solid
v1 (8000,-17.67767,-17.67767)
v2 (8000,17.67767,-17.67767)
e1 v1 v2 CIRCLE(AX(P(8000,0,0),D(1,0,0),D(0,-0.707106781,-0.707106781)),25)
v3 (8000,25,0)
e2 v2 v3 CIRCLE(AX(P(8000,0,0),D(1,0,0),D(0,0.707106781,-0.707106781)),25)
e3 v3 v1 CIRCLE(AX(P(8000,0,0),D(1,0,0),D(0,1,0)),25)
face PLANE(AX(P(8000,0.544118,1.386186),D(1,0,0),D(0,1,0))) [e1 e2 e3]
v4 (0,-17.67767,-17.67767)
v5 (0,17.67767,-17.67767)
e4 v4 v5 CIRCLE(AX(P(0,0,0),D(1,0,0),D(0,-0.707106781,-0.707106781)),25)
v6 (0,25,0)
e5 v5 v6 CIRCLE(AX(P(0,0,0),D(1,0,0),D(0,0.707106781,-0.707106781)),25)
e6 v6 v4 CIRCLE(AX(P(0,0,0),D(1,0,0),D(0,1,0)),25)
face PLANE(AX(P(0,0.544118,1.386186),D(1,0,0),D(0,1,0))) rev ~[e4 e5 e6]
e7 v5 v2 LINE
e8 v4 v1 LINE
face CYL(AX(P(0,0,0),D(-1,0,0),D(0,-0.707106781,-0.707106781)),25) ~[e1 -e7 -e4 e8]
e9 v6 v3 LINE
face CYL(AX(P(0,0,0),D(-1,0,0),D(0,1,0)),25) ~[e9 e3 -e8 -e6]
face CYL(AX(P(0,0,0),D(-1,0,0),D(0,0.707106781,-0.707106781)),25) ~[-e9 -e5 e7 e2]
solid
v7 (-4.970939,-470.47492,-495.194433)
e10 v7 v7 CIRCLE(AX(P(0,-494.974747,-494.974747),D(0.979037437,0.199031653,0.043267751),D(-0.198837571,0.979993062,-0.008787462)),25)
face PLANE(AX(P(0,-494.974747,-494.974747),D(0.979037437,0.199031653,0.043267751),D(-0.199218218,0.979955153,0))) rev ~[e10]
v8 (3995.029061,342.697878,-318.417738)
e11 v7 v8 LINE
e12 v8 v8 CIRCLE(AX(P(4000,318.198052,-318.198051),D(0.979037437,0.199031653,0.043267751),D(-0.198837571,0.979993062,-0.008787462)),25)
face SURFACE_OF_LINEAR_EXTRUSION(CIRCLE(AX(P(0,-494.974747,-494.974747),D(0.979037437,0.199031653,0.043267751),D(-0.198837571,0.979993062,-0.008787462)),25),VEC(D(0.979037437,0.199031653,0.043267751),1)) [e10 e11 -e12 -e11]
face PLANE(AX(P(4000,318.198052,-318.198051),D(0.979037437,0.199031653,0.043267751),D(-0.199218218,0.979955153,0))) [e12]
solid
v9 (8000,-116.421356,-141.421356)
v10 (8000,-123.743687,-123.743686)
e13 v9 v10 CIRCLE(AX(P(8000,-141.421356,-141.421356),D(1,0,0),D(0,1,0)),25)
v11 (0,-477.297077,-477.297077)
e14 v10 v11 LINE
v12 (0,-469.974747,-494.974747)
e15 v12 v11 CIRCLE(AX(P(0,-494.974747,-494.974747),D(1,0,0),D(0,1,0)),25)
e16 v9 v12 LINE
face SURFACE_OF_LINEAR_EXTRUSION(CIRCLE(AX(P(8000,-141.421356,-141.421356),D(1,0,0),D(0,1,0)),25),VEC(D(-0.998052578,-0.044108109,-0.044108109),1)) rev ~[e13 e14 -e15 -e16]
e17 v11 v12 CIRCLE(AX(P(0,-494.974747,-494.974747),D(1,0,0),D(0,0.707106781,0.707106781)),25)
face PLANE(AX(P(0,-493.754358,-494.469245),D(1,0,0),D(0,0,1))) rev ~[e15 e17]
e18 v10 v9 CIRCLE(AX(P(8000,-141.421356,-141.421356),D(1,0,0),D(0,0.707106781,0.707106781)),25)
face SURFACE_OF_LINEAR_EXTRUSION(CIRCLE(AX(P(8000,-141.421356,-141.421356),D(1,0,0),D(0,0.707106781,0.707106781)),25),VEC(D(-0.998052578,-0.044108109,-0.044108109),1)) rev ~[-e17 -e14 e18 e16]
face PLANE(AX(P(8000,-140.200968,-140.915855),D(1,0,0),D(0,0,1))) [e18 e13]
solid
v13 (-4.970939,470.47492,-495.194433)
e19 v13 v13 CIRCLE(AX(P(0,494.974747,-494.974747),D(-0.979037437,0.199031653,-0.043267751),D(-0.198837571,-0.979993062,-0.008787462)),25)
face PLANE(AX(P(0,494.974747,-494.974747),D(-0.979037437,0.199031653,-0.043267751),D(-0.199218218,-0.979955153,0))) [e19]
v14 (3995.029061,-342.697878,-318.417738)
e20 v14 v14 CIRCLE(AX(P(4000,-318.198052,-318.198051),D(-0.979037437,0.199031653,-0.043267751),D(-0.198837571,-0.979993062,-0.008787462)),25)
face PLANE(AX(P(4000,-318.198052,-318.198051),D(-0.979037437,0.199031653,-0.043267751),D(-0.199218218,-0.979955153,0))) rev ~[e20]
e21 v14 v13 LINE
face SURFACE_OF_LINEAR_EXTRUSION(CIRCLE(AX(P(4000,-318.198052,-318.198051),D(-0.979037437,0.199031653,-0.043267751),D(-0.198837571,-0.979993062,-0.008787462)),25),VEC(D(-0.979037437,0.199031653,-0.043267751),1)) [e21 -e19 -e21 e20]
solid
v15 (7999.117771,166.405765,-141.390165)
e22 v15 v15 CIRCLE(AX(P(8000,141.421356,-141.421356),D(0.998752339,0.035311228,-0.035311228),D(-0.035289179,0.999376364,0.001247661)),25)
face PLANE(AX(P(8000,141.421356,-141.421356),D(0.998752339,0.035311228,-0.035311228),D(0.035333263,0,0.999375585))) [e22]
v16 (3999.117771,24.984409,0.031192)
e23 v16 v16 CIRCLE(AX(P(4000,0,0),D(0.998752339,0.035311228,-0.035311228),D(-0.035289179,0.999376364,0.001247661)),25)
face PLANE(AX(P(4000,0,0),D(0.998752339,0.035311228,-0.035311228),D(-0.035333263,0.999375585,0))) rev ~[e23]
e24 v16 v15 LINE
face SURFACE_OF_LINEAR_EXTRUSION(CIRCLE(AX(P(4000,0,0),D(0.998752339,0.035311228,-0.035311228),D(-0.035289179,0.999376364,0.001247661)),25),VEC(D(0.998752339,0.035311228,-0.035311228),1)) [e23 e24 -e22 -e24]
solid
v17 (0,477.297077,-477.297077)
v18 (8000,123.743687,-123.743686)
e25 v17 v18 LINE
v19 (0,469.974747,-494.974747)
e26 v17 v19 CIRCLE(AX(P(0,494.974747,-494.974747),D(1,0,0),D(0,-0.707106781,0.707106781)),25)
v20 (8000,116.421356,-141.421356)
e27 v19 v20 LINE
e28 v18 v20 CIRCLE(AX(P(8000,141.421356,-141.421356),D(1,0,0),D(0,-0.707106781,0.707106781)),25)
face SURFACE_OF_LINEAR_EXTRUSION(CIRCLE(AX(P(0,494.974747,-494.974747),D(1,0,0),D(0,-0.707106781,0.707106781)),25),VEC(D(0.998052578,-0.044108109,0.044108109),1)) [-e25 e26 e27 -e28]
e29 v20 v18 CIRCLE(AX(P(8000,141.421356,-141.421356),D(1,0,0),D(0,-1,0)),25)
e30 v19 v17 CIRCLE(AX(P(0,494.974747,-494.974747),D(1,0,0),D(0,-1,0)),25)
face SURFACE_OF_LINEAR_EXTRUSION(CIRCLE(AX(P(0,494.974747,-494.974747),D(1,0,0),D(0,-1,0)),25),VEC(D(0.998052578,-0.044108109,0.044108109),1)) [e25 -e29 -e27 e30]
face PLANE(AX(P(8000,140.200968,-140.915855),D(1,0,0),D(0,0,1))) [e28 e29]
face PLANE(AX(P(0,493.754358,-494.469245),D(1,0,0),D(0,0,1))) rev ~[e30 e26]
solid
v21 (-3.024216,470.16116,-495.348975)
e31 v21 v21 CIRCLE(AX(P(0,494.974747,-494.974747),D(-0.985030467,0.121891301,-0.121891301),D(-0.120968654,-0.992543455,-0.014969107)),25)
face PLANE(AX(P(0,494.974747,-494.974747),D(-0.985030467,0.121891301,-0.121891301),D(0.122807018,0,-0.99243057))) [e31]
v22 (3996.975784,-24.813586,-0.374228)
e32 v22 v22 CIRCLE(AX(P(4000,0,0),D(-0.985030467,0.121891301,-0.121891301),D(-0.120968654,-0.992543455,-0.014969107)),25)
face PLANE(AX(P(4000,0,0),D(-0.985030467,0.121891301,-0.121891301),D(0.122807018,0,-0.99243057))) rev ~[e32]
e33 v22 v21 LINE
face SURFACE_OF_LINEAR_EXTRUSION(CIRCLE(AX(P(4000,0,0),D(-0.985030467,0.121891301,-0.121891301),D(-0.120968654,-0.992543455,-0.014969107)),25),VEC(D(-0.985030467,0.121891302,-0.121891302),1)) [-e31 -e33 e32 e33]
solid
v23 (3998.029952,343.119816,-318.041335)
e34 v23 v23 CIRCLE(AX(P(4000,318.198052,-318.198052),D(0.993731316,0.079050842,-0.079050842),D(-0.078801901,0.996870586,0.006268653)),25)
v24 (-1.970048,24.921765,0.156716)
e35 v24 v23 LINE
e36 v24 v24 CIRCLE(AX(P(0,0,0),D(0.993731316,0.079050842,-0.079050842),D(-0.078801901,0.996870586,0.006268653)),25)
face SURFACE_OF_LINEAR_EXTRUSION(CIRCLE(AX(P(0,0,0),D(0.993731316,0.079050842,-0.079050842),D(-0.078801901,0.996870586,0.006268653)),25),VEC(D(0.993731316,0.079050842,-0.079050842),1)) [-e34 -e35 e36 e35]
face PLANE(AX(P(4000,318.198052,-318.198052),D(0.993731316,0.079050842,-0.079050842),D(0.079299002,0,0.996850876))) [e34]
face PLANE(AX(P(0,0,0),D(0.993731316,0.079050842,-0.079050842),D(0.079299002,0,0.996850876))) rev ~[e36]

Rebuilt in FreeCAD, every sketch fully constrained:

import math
import FreeCAD as App
import Part
import Sketcher

V = App.Vector

doc = App.newDocument("Part")
body = doc.addObject("PartDesign::Body", "Body")

# Sketch on YZ plane
sketch1 = body.newObject("Sketcher::SketchObject", "Sketch")
sketch1.AttachmentSupport = (doc.getObject("YZ_Plane"), [""])
sketch1.MapMode = "FlatFace"
sketch1.addGeometry([
    Part.ArcOfCircle(Part.Circle(V(0, 0, 0), V(0, 0, 1), 25), math.radians(-45), math.radians(0)),
    Part.ArcOfCircle(Part.Circle(V(0, 0, 0), V(0, 0, 1), 25), math.radians(0), math.radians(225)),
    Part.ArcOfCircle(Part.Circle(V(0, 0, 0), V(0, 0, 1), 25), math.radians(-135), math.radians(-45)),
], False)
sketch1.addConstraint([
    Sketcher.Constraint("Tangent", 0, 2, 1, 1),
    Sketcher.Constraint("Tangent", 1, 2, 2, 1),
    Sketcher.Constraint("Tangent", 2, 2, 0, 1),
    Sketcher.Constraint("Coincident", 0, 3, -1, 1),
    Sketcher.Constraint("PointOnObject", 0, 2, -1),
    Sketcher.Constraint("Horizontal", 1, 2, 2, 2),
    Sketcher.Constraint("Radius", 0, 25.0),
    Sketcher.Constraint("DistanceX", 1, 2, -1, 1, 17.67767),
])
pad1 = body.newObject("PartDesign::Pad", "Pad")
pad1.Profile = sketch1
pad1.Length = 8000
body2 = doc.addObject("PartDesign::Body", "Body001")

# Sketch on YZ plane
sketch2 = body2.newObject("Sketcher::SketchObject", "Sketch001")
sketch2.AttachmentSupport = (doc.getObject("YZ_Plane001"), [""])
sketch2.MapMode = "FlatFace"
sketch2.addGeometry([
    Part.ArcOfCircle(Part.Circle(V(495, -495, 0), V(0, 0, 1), 25), math.radians(180), math.radians(495)),
    Part.ArcOfCircle(Part.Circle(V(495, -495, 0), V(0, 0, 1), 25), math.radians(135), math.radians(180)),
], False)
sketch2.addConstraint([
    Sketcher.Constraint("Tangent", 0, 1, 1, 2),
    Sketcher.Constraint("Coincident", 1, 1, 0, 2),
    Sketcher.Constraint("Horizontal", 1, 3, 0, 1),
    Sketcher.Constraint("Radius", 0, 25.0),
    Sketcher.Constraint("DistanceX", 0, 1, 1, 1, 7.32233),
    Sketcher.Constraint("DistanceX", -1, 1, 0, 3, 494.974747),
    Sketcher.Constraint("DistanceY", 0, 3, -1, 1, 494.974747),
])

# Sketch on an angled plane
sketch3 = body2.newObject("Sketcher::SketchObject", "Sketch002")
sketch3.Placement = App.Placement(V(21.832359, 0, -494.009884), App.Rotation(V(0.999024866, 0, 0.044151079), V(0, 1.000000001, 0), V(-0.044151079, 0, 0.999024866), "ZXY"))
sketch3.addGeometry(Part.LineSegment(V(-22, 495, 0), V(7986, 141, 0)), False)
sketch3.addConstraint([
    Sketcher.Constraint("DistanceX", 0, 1, -1, 1, 21.853669),
    Sketcher.Constraint("DistanceY", 0, 2, 0, 1, 353.553391),
    Sketcher.Constraint("Distance", 0, 8015.609776),
    Sketcher.Constraint("DistanceY", -1, 1, 0, 1, 494.974747),
])
doc.recompute()

additivepipe = body2.newObject("PartDesign::AdditivePipe", "AdditivePipe")
additivepipe.Profile = sketch2
additivepipe.Spine = (sketch3, ["Edge1"])
body3 = doc.addObject("PartDesign::Body", "Body002")

# Sketch on YZ plane
sketch4 = body3.newObject("Sketcher::SketchObject", "Sketch003")
sketch4.AttachmentSupport = (doc.getObject("YZ_Plane002"), [""])
sketch4.MapMode = "FlatFace"
sketch4.addGeometry([
    Part.ArcOfCircle(Part.Circle(V(-495, -495, 0), V(0, 0, 1), 25), math.radians(45), math.radians(360)),
    Part.ArcOfCircle(Part.Circle(V(-495, -495, 0), V(0, 0, 1), 25), math.radians(0), math.radians(45)),
], False)
sketch4.addConstraint([
    Sketcher.Constraint("Tangent", 0, 1, 1, 2),
    Sketcher.Constraint("Coincident", 1, 1, 0, 2),
    Sketcher.Constraint("Horizontal", 0, 3, 1, 1),
    Sketcher.Constraint("Radius", 0, 25.0),
    Sketcher.Constraint("DistanceX", 0, 3, 0, 1, 17.67767),
    Sketcher.Constraint("DistanceX", 0, 3, -1, 1, 494.974747),
    Sketcher.Constraint("DistanceY", 0, 3, -1, 1, 494.974747),
])

# Sketch on an angled plane
sketch5 = body3.newObject("Sketcher::SketchObject", "Sketch004")
sketch5.Placement = App.Placement(V(21.832359, 0, -494.009884), App.Rotation(V(-0.999024866, 0, -0.044151079), V(0, 1.000000001, 0), V(0.044151079, 0, -0.999024866), "ZXY"))
sketch5.addGeometry(Part.LineSegment(V(-7986, -141, 0), V(22, -495, 0)), False)
sketch5.addConstraint([
    Sketcher.Constraint("DistanceX", -1, 1, 0, 2, 21.853669),
    Sketcher.Constraint("DistanceY", 0, 2, 0, 1, 353.553391),
    Sketcher.Constraint("Distance", 0, 8015.609776),
    Sketcher.Constraint("DistanceY", 0, 1, -1, 1, 141.421356),
])
doc.recompute()

additivepipe2 = body3.newObject("PartDesign::AdditivePipe", "AdditivePipe001")
additivepipe2.Profile = sketch4
additivepipe2.Spine = (sketch5, ["Edge1"])
body4 = doc.addObject("PartDesign::Body", "Body003")

# Sketch on an angled plane
sketch6 = body4.newObject("Sketcher::SketchObject", "Sketch005")
sketch6.Placement = App.Placement(V(-117.418002, 23.870281, -5.189192), App.Rotation(V(-0.19883757, -0.979993062, -0.008787462), V(-0.044151079, 0, 0.999024866), V(-0.979037437, 0.199031653, -0.043267751), "ZXY"))
sketch6.addGeometry(Part.Circle(V(-481, -494, 0), V(0, 0, 1), 25), False)
sketch6.addConstraint([
    Sketcher.Constraint("Diameter", 0, 50.0),
    Sketcher.Constraint("DistanceY", 0, 3, -1, 1, 494.49208),
    Sketcher.Constraint("DistanceX", 0, 3, -1, 1, 480.722246),
])

# Sketch on an angled plane
sketch7 = body4.newObject("Sketcher::SketchObject", "Sketch006")
sketch7.Placement = App.Placement(V(96.631405, 475.330239, 0), App.Rotation(V(-0.979955153, 0.199218218, 0), V(0, 0, 1), V(0.199218218, 0.979955153, 0), "ZXY"))
sketch7.addGeometry(Part.LineSegment(V(-3983, -318, 0), V(99, -495, 0)), False)
sketch7.addConstraint([
    Sketcher.Constraint("DistanceX", 0, 1, -1, 1, 3983.211461),
    Sketcher.Constraint("DistanceY", 0, 1, -1, 1, 318.198052),
    Sketcher.Constraint("DistanceX", 0, 1, 0, 2, 4081.819448),
    Sketcher.Constraint("Distance", 0, 4085.645605),
])
doc.recompute()

additivepipe3 = body4.newObject("PartDesign::AdditivePipe", "AdditivePipe002")
additivepipe3.Profile = sketch6
additivepipe3.Spine = (sketch7, ["Edge1"])
body5 = doc.addObject("PartDesign::Body", "Body004")

# Sketch on an angled plane
sketch8 = body5.newObject("Sketcher::SketchObject", "Sketch007")
sketch8.Placement = App.Placement(V(0, 0, 0), App.Rotation(V(-0.078801901, 0.996870586, 0.006268653), V(0.079299001, 0, 0.996850876), V(0.993731316, 0.079050842, -0.079050842), "ZXY"))
sketch8.addGeometry(Part.Circle(V(0, 0, 0), V(0, 0, 1), 25), False)
sketch8.addConstraint([
    Sketcher.Constraint("Coincident", 0, 3, -1, 1),
    Sketcher.Constraint("Diameter", 0, 50.0),
])

# Sketch on an angled plane
sketch9 = body5.newObject("Sketcher::SketchObject", "Sketch008")
sketch9.Placement = App.Placement(V(0, 0, 0), App.Rotation(V(0.996850876, 0, -0.079299002), V(0, 1.000000001, 0), V(0.079299002, 0, 0.996850876), "ZXY"))
sketch9.addGeometry(Part.LineSegment(V(0, 0, 0), V(4013, 318, 0)), False)
sketch9.addConstraint([
    Sketcher.Constraint("Coincident", 0, 1, -1, 1),
    Sketcher.Constraint("DistanceY", -1, 1, 0, 2, 318.198052),
    Sketcher.Constraint("Distance", 0, 4025.232915),
])
doc.recompute()

additivepipe4 = body5.newObject("PartDesign::AdditivePipe", "AdditivePipe003")
additivepipe4.Profile = sketch8
additivepipe4.Spine = (sketch9, ["Edge1"])
body6 = doc.addObject("PartDesign::Body", "Body005")

# Sketch on an angled plane
sketch10 = body6.newObject("Sketcher::SketchObject", "Sketch009")
sketch10.Placement = App.Placement(V(-117.418002, -23.870281, -5.189192), App.Rotation(V(-0.19883757, 0.979993062, -0.008787462), V(-0.044151079, 0, 0.999024866), V(0.979037437, 0.199031653, 0.043267751), "ZXY"))
sketch10.addGeometry(Part.Circle(V(-481, -494, 0), V(0, 0, 1), 25), False)
sketch10.addConstraint([
    Sketcher.Constraint("Diameter", 0, 50.0),
    Sketcher.Constraint("DistanceY", 0, 3, -1, 1, 494.49208),
    Sketcher.Constraint("DistanceX", 0, 3, -1, 1, 480.722246),
])

# Sketch on an angled plane
sketch11 = body6.newObject("Sketcher::SketchObject", "Sketch010")
sketch11.Placement = App.Placement(V(96.631405, -475.330239, 0), App.Rotation(V(0.979955153, 0.199218218, 0), V(0, 0, 1), V(0.199218218, -0.979955153, 0), "ZXY"))
sketch11.addGeometry(Part.LineSegment(V(-99, -495, 0), V(3983, -318, 0)), False)
sketch11.addConstraint([
    Sketcher.Constraint("DistanceX", -1, 1, 0, 2, 3983.211461),
    Sketcher.Constraint("DistanceY", 0, 2, -1, 1, 318.198052),
    Sketcher.Constraint("DistanceX", 0, 1, 0, 2, 4081.819448),
    Sketcher.Constraint("Distance", 0, 4085.645605),
])
doc.recompute()

additivepipe5 = body6.newObject("PartDesign::AdditivePipe", "AdditivePipe004")
additivepipe5.Profile = sketch10
additivepipe5.Spine = (sketch11, ["Edge1"])
body7 = doc.addObject("PartDesign::Body", "Body006")

# Sketch on an angled plane
sketch12 = body7.newObject("Sketcher::SketchObject", "Sketch011")
sketch12.Placement = App.Placement(V(-118.859915, 14.708164, -14.708164), App.Rotation(V(-0.120968654, -0.992543455, -0.014969107), V(-0.122807017, 0, 0.99243057), V(-0.985030467, 0.121891301, -0.121891301), "ZXY"))
sketch12.addGeometry(Part.Circle(V(-484, -491, 0), V(0, 0, 1), 25), False)
sketch12.addConstraint([
    Sketcher.Constraint("Diameter", 0, 50.0),
    Sketcher.Constraint("DistanceY", 0, 3, -1, 1, 491.22807),
    Sketcher.Constraint("DistanceX", 0, 3, -1, 1, 483.874615),
])

# Sketch on an angled plane
sketch13 = body7.newObject("Sketcher::SketchObject", "Sketch012")
sketch13.Placement = App.Placement(V(60.326254, 0, -487.509754), App.Rotation(V(-0.99243057, 0, -0.122807018), V(0, 1, 0), V(0.122807018, 0, -0.99243057), "ZXY"))
sketch13.addGeometry(Part.LineSegment(V(-3970, 0, 0), V(61, 495, 0)), False)
sketch13.addConstraint([
    Sketcher.Constraint("PointOnObject", 0, 1, -1),
    Sketcher.Constraint("Distance", 0, 4060.788101),
    Sketcher.Constraint("DistanceX", 0, 1, -1, 1, 3969.72228),
    Sketcher.Constraint("DistanceX", -1, 1, 0, 2, 60.786372),
])
doc.recompute()

additivepipe6 = body7.newObject("PartDesign::AdditivePipe", "AdditivePipe005")
additivepipe6.Profile = sketch12
additivepipe6.Spine = (sketch13, ["Edge1"])
body8 = doc.addObject("PartDesign::Body", "Body007")

# Sketch on an angled plane
sketch14 = body8.newObject("Sketcher::SketchObject", "Sketch013")
sketch14.Placement = App.Placement(V(3990.024938, 141.068685, -141.068685), App.Rotation(V(-0.035289179, 0.999376364, 0.001247661), V(0.035333263, 0, 0.999375585), V(0.998752339, 0.035311228, -0.035311228), "ZXY"))
sketch14.addGeometry(Part.Circle(V(-141, 141, 0), V(0, 0, 1), 25), False)
sketch14.addConstraint([
    Sketcher.Constraint("Diameter", 0, 50.0),
    Sketcher.Constraint("DistanceY", -1, 1, 0, 3, 141.333051),
    Sketcher.Constraint("DistanceX", 0, 3, -1, 1, 141.156715),
])

# Sketch on an angled plane
sketch15 = body8.newObject("Sketcher::SketchObject", "Sketch014")
sketch15.Placement = App.Placement(V(4.993758, 0, 141.2448), App.Rotation(V(0.999375585, 0, -0.035333263), V(0, 0.999999999, 0), V(0.035333263, 0, 0.999375585), "ZXY"))
sketch15.addGeometry(Part.LineSegment(V(3998, 0, 0), V(8000, 141, 0)), False)
sketch15.addConstraint([
    Sketcher.Constraint("PointOnObject", 0, 1, -1),
    Sketcher.Constraint("DistanceX", -1, 1, 0, 1, 3997.502339),
    Sketcher.Constraint("Distance", 0, 4004.996876),
    Sketcher.Constraint("DistanceX", -1, 1, 0, 2, 8000.001555),
])
doc.recompute()

additivepipe7 = body8.newObject("PartDesign::AdditivePipe", "AdditivePipe006")
additivepipe7.Profile = sketch14
additivepipe7.Spine = (sketch15, ["Edge1"])

doc.recompute()
